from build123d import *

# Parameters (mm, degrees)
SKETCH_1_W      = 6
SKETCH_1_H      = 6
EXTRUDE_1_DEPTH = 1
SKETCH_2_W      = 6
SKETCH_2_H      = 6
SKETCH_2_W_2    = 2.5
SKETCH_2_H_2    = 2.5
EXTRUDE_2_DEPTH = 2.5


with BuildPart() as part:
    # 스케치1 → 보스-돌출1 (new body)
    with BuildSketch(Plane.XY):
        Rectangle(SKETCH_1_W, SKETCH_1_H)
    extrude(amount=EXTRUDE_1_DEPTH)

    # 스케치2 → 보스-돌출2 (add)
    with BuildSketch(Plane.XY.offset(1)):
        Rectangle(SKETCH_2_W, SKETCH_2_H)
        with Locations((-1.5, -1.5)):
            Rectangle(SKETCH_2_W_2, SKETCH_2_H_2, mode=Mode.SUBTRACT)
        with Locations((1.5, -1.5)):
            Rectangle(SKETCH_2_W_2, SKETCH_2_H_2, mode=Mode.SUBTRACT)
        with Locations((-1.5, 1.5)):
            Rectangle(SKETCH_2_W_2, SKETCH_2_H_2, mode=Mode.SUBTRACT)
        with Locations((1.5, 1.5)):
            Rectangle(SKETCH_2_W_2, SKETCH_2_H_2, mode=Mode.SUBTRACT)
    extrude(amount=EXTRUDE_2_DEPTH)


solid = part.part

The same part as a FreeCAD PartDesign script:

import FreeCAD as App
import Part
import Sketcher

doc = App.newDocument("Part")
body = doc.addObject("PartDesign::Body", "Body")

sketch1 = body.newObject("Sketcher::SketchObject", "Sketch")
sketch1.AttachmentSupport = (doc.getObject("XY_Plane"), [""])
sketch1.MapMode = "FlatFace"
sketch1.addGeometry([
    Part.LineSegment(App.Vector(-3, 3, 0), App.Vector(-3, -3, 0)),
    Part.LineSegment(App.Vector(-3, -3, 0), App.Vector(3, -3, 0)),
    Part.LineSegment(App.Vector(3, -3, 0), App.Vector(3, 3, 0)),
    Part.LineSegment(App.Vector(3, 3, 0), App.Vector(-3, 3, 0)),
], False)
sketch1.addConstraint([
    Sketcher.Constraint("Coincident", 0, 2, 1, 1),
    Sketcher.Constraint("Coincident", 1, 2, 2, 1),
    Sketcher.Constraint("Coincident", 2, 2, 3, 1),
    Sketcher.Constraint("Coincident", 3, 2, 0, 1),
    Sketcher.Constraint("Vertical", 0),
    Sketcher.Constraint("Horizontal", 1),
    Sketcher.Constraint("Vertical", 2),
    Sketcher.Constraint("Horizontal", 3),
    Sketcher.Constraint("Symmetric", 0, 2, 2, 2, -1, 1),
    Sketcher.Constraint("Equal", 3, 0),
    Sketcher.Constraint("DistanceX", 1, 1, 1, 2, 6.0),
])
pad1 = body.newObject("PartDesign::Pad", "Pad")
pad1.Profile = sketch1
pad1.Length = 1

sketch2 = body.newObject("Sketcher::SketchObject", "Sketch001")
sketch2.AttachmentSupport = (doc.getObject("XY_Plane"), [""])
sketch2.MapMode = "FlatFace"
sketch2.AttachmentOffset = App.Placement(App.Vector(0, 0, 1), App.Rotation())
sketch2.addGeometry([
    Part.LineSegment(App.Vector(-3, 3, 0), App.Vector(-3, -3, 0)),
    Part.LineSegment(App.Vector(-3, -3, 0), App.Vector(3, -3, 0)),
    Part.LineSegment(App.Vector(3, -3, 0), App.Vector(3, 3, 0)),
    Part.LineSegment(App.Vector(3, 3, 0), App.Vector(-3, 3, 0)),
    Part.LineSegment(App.Vector(-0.2, -2.8, 0), App.Vector(-2.8, -2.8, 0)),
    Part.LineSegment(App.Vector(-2.8, -2.8, 0), App.Vector(-2.8, -0.2, 0)),
    Part.LineSegment(App.Vector(-2.8, -0.2, 0), App.Vector(-0.2, -0.2, 0)),
    Part.LineSegment(App.Vector(-0.2, -0.2, 0), App.Vector(-0.2, -2.8, 0)),
    Part.LineSegment(App.Vector(2.8, -2.8, 0), App.Vector(0.2, -2.8, 0)),
    Part.LineSegment(App.Vector(0.2, -2.8, 0), App.Vector(0.2, -0.2, 0)),
    Part.LineSegment(App.Vector(0.2, -0.2, 0), App.Vector(2.8, -0.2, 0)),
    Part.LineSegment(App.Vector(2.8, -0.2, 0), App.Vector(2.8, -2.8, 0)),
    Part.LineSegment(App.Vector(-0.2, 0.2, 0), App.Vector(-2.8, 0.2, 0)),
    Part.LineSegment(App.Vector(-2.8, 0.2, 0), App.Vector(-2.8, 2.8, 0)),
    Part.LineSegment(App.Vector(-2.8, 2.8, 0), App.Vector(-0.2, 2.8, 0)),
    Part.LineSegment(App.Vector(-0.2, 2.8, 0), App.Vector(-0.2, 0.2, 0)),
    Part.LineSegment(App.Vector(2.8, 0.2, 0), App.Vector(0.2, 0.2, 0)),
    Part.LineSegment(App.Vector(0.2, 0.2, 0), App.Vector(0.2, 2.8, 0)),
    Part.LineSegment(App.Vector(0.2, 2.8, 0), App.Vector(2.8, 2.8, 0)),
    Part.LineSegment(App.Vector(2.8, 2.8, 0), App.Vector(2.8, 0.2, 0)),
], False)
sketch2.addConstraint([
    Sketcher.Constraint("Coincident", 0, 2, 1, 1),
    Sketcher.Constraint("Coincident", 1, 2, 2, 1),
    Sketcher.Constraint("Coincident", 2, 2, 3, 1),
    Sketcher.Constraint("Coincident", 3, 2, 0, 1),
    Sketcher.Constraint("Coincident", 4, 2, 5, 1),
    Sketcher.Constraint("Coincident", 5, 2, 6, 1),
    Sketcher.Constraint("Coincident", 6, 2, 7, 1),
    Sketcher.Constraint("Coincident", 7, 2, 4, 1),
    Sketcher.Constraint("Coincident", 8, 2, 9, 1),
    Sketcher.Constraint("Coincident", 9, 2, 10, 1),
    Sketcher.Constraint("Coincident", 10, 2, 11, 1),
    Sketcher.Constraint("Coincident", 11, 2, 8, 1),
    Sketcher.Constraint("Coincident", 12, 2, 13, 1),
    Sketcher.Constraint("Coincident", 13, 2, 14, 1),
    Sketcher.Constraint("Coincident", 14, 2, 15, 1),
    Sketcher.Constraint("Coincident", 15, 2, 12, 1),
    Sketcher.Constraint("Coincident", 16, 2, 17, 1),
    Sketcher.Constraint("Coincident", 17, 2, 18, 1),
    Sketcher.Constraint("Coincident", 18, 2, 19, 1),
    Sketcher.Constraint("Coincident", 19, 2, 16, 1),
    Sketcher.Constraint("Vertical", 0),
    Sketcher.Constraint("Horizontal", 1),
    Sketcher.Constraint("Vertical", 2),
    Sketcher.Constraint("Horizontal", 3),
    Sketcher.Constraint("Horizontal", 4),
    Sketcher.Constraint("Vertical", 5),
    Sketcher.Constraint("Horizontal", 6),
    Sketcher.Constraint("Vertical", 7),
    Sketcher.Constraint("Horizontal", 8),
    Sketcher.Constraint("Vertical", 9),
    Sketcher.Constraint("Horizontal", 10),
    Sketcher.Constraint("Vertical", 11),
    Sketcher.Constraint("Horizontal", 12),
    Sketcher.Constraint("Vertical", 13),
    Sketcher.Constraint("Horizontal", 14),
    Sketcher.Constraint("Vertical", 15),
    Sketcher.Constraint("Horizontal", 16),
    Sketcher.Constraint("Vertical", 17),
    Sketcher.Constraint("Horizontal", 18),
    Sketcher.Constraint("Vertical", 19),
    Sketcher.Constraint("Symmetric", 0, 2, 2, 2, -1, 1),
    Sketcher.Constraint("Symmetric", 10, 2, 12, 2, -1, 1),
    Sketcher.Constraint("Symmetric", 8, 2, 14, 2, -1, 1),
    Sketcher.Constraint("Symmetric", 6, 2, 16, 2, -1, 1),
    Sketcher.Constraint("Symmetric", 4, 2, 18, 2, -1, 1),
    Sketcher.Constraint("Symmetric", 7, 2, 8, 2, -2),
    Sketcher.Constraint("Symmetric", 5, 2, 10, 2, -2),
    Sketcher.Constraint("Equal", 3, 0),
    Sketcher.Constraint("Equal", 18, 5),
    Sketcher.Constraint("DistanceX", 1, 1, 1, 2, 6.0),
    Sketcher.Constraint("DistanceX", 4, 2, 4, 1, 2.5),
    Sketcher.Constraint("DistanceX", 4, 2, 8, 2, 3.0),
    Sketcher.Constraint("DistanceY", 4, 2, 12, 2, 3.0),
])
pad2 = body.newObject("PartDesign::Pad", "Pad001")
pad2.Profile = sketch2
pad2.Length = 2.5

doc.recompute()
